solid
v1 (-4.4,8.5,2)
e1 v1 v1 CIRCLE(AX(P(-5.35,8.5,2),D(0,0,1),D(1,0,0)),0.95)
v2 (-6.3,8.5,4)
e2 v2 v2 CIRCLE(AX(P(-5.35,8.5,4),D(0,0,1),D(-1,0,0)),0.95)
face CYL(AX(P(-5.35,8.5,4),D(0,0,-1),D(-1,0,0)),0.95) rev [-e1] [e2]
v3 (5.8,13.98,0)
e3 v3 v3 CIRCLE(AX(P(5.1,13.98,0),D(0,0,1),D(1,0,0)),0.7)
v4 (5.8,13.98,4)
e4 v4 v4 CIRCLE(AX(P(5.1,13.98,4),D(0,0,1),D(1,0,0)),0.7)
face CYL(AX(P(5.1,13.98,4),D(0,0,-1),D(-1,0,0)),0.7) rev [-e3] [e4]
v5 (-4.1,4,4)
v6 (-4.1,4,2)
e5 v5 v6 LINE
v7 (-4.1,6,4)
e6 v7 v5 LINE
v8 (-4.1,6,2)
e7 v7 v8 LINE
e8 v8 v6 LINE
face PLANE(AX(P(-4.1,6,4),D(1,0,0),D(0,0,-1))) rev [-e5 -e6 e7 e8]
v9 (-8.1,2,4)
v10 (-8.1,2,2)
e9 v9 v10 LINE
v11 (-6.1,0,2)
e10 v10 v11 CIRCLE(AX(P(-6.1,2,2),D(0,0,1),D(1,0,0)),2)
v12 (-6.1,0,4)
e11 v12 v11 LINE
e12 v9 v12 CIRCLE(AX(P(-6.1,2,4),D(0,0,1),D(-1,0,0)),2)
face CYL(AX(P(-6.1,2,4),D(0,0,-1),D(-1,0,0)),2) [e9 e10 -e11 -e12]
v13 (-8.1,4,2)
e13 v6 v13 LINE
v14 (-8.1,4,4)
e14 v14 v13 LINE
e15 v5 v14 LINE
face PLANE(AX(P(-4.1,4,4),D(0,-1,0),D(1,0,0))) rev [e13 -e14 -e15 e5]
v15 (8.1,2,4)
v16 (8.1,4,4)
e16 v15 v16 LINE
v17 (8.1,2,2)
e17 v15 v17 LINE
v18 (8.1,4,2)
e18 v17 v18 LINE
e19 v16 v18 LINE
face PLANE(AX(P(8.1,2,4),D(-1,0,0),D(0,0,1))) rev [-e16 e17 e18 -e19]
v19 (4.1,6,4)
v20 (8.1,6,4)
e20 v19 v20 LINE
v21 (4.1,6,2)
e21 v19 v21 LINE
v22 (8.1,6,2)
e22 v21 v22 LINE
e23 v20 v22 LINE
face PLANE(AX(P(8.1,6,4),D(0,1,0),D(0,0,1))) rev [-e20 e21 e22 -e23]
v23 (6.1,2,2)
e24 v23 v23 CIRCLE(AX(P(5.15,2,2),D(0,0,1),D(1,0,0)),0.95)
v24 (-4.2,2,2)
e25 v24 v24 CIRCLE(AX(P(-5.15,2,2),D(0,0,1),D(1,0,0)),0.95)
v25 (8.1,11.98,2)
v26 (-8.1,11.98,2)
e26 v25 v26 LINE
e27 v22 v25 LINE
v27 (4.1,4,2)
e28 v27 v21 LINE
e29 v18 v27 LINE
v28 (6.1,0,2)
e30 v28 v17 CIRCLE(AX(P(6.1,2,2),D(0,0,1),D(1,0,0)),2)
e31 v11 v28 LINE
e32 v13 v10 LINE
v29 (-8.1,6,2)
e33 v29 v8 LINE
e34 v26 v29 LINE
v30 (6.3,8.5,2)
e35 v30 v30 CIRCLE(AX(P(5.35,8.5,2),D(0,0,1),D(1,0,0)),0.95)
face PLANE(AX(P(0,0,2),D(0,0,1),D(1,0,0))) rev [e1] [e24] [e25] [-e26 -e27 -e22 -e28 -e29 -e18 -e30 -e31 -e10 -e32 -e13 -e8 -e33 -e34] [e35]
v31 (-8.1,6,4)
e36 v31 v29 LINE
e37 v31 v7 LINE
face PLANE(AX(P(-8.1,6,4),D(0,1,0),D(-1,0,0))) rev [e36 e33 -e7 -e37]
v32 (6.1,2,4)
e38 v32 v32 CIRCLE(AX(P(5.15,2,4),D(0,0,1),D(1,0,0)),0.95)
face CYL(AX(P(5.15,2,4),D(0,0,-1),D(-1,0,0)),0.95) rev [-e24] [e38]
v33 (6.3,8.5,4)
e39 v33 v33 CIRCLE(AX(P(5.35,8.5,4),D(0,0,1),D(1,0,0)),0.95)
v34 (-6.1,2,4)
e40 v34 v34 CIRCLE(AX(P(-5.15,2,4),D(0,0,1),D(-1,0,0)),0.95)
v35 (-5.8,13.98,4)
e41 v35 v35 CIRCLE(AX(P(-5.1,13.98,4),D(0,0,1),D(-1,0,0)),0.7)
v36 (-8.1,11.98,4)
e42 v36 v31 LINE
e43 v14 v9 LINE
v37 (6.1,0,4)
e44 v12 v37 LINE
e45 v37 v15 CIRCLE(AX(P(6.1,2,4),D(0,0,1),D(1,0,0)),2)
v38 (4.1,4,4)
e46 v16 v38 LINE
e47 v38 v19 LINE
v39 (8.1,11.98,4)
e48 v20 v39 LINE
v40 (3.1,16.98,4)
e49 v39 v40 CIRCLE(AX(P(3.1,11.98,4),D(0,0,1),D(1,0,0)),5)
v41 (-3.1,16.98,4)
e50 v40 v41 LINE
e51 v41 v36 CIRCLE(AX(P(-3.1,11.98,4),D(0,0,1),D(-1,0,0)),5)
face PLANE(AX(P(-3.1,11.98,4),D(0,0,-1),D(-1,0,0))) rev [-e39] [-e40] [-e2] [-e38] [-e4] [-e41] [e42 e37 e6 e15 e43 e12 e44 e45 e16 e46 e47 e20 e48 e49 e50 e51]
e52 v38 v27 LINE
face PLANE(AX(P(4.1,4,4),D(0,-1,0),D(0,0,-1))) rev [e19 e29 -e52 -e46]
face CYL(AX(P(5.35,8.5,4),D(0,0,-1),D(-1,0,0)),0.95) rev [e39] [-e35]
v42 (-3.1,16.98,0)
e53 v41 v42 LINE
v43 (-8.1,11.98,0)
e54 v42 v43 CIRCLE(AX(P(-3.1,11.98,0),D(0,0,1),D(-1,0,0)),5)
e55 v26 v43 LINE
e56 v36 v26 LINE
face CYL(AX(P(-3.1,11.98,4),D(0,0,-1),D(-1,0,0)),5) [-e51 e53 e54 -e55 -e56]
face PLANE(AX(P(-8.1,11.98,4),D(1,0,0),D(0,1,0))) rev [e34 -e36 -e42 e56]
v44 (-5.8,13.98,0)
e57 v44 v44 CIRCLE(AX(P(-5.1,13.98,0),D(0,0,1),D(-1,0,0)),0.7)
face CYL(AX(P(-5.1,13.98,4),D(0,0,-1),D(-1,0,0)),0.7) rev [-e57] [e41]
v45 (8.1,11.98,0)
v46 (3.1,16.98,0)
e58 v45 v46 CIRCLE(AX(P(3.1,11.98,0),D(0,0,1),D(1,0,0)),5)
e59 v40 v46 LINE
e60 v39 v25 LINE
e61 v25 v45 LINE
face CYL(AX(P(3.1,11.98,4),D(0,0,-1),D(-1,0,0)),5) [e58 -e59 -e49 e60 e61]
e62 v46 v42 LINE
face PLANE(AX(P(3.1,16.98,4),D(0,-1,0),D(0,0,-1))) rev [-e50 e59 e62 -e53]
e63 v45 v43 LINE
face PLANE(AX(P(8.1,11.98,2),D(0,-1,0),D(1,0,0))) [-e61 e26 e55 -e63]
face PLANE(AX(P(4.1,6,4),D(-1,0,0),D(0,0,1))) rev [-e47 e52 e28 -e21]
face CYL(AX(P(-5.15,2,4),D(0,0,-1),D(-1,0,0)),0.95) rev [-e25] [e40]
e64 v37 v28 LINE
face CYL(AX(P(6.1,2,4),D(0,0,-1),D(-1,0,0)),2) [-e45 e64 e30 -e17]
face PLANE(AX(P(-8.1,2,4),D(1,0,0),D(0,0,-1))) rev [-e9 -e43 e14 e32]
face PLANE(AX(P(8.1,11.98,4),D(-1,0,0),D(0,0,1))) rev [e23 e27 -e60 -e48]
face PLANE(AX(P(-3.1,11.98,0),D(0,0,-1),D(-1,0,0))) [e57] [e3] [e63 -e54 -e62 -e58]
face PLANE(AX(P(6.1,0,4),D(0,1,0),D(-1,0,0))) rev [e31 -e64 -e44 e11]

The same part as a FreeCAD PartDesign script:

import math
import FreeCAD as App
import Part
import Sketcher

V = App.Vector

doc = App.newDocument("Part")
body = doc.addObject("PartDesign::Body", "Body")

# Sketch on XY plane
sketch1 = body.newObject("Sketcher::SketchObject", "Sketch")
sketch1.AttachmentSupport = (doc.getObject("XY_Plane"), [""])
sketch1.MapMode = "FlatFace"
sketch1.addGeometry(Part.LineSegment(V(3.1, 16.98, 0), V(-3.1, 16.98, 0)), False)
sketch1.addGeometry(Part.ArcOfCircle(Part.Circle(V(-3.1, 11.98, 0), V(0, 0, 1), 5), math.radians(90), math.radians(180)), False)
sketch1.addGeometry(Part.LineSegment(V(-8.1, 11.98, 0), V(-8.1, 6, 0)), False)
sketch1.addGeometry(Part.LineSegment(V(-8.1, 6, 0), V(-4.1, 6, 0)), False)
sketch1.addGeometry(Part.LineSegment(V(-4.1, 6, 0), V(-4.1, 4, 0)), False)
sketch1.addGeometry(Part.LineSegment(V(-4.1, 4, 0), V(-8.1, 4, 0)), False)
sketch1.addGeometry(Part.LineSegment(V(-8.1, 4, 0), V(-8.1, 2, 0)), False)
sketch1.addGeometry(Part.ArcOfCircle(Part.Circle(V(-6.1, 2, 0), V(0, 0, 1), 2), math.radians(-180), math.radians(-90)), False)
sketch1.addGeometry(Part.LineSegment(V(-6.1, 0, 0), V(6.1, 0, 0)), False)
sketch1.addGeometry(Part.ArcOfCircle(Part.Circle(V(6.1, 2, 0), V(0, 0, 1), 2), math.radians(-90), math.radians(0)), False)
sketch1.addGeometry(Part.LineSegment(V(8.1, 2, 0), V(8.1, 4, 0)), False)
sketch1.addGeometry(Part.LineSegment(V(8.1, 4, 0), V(4.1, 4, 0)), False)
sketch1.addGeometry(Part.LineSegment(V(4.1, 4, 0), V(4.1, 6, 0)), False)
sketch1.addGeometry(Part.LineSegment(V(4.1, 6, 0), V(8.1, 6, 0)), False)
sketch1.addGeometry(Part.LineSegment(V(8.1, 6, 0), V(8.1, 11.98, 0)), False)
sketch1.addGeometry(Part.ArcOfCircle(Part.Circle(V(3.1, 11.98, 0), V(0, 0, 1), 5), math.radians(0), math.radians(90)), False)
sketch1.addGeometry(Part.Circle(V(-5.15, 2, 0), V(0, 0, 1), 0.95), False)
sketch1.addGeometry(Part.Circle(V(5.15, 2, 0), V(0, 0, 1), 0.95), False)
sketch1.addGeometry(Part.Circle(V(-5.35, 8.5, 0), V(0, 0, 1), 0.95), False)
sketch1.addGeometry(Part.Circle(V(-5.1, 13.98, 0), V(0, 0, 1), 0.7), False)
sketch1.addGeometry(Part.Circle(V(5.35, 8.5, 0), V(0, 0, 1), 0.95), False)
sketch1.addGeometry(Part.Circle(V(5.1, 13.98, 0), V(0, 0, 1), 0.7), False)
sketch1.addConstraint(Sketcher.Constraint("Tangent", 0, 2, 1, 1))
sketch1.addConstraint(Sketcher.Constraint("Tangent", 1, 2, 2, 1))
sketch1.addConstraint(Sketcher.Constraint("Coincident", 2, 2, 3, 1))
sketch1.addConstraint(Sketcher.Constraint("Coincident", 3, 2, 4, 1))
sketch1.addConstraint(Sketcher.Constraint("Coincident", 4, 2, 5, 1))
sketch1.addConstraint(Sketcher.Constraint("Coincident", 5, 2, 6, 1))
sketch1.addConstraint(Sketcher.Constraint("Tangent", 6, 2, 7, 1))
sketch1.addConstraint(Sketcher.Constraint("Tangent", 7, 2, 8, 1))
sketch1.addConstraint(Sketcher.Constraint("Tangent", 8, 2, 9, 1))
sketch1.addConstraint(Sketcher.Constraint("Tangent", 9, 2, 10, 1))
sketch1.addConstraint(Sketcher.Constraint("Coincident", 10, 2, 11, 1))
sketch1.addConstraint(Sketcher.Constraint("Coincident", 11, 2, 12, 1))
sketch1.addConstraint(Sketcher.Constraint("Coincident", 12, 2, 13, 1))
sketch1.addConstraint(Sketcher.Constraint("Coincident", 13, 2, 14, 1))
sketch1.addConstraint(Sketcher.Constraint("Tangent", 14, 2, 15, 1))
sketch1.addConstraint(Sketcher.Constraint("Tangent", 15, 2, 0, 1))
sketch1.addConstraint(Sketcher.Constraint("Horizontal", 0))
sketch1.addConstraint(Sketcher.Constraint("Vertical", 2))
sketch1.addConstraint(Sketcher.Constraint("Horizontal", 3))
sketch1.addConstraint(Sketcher.Constraint("Vertical", 4))
sketch1.addConstraint(Sketcher.Constraint("Horizontal", 5))
sketch1.addConstraint(Sketcher.Constraint("Vertical", 6))
sketch1.addConstraint(Sketcher.Constraint("Horizontal", 8))
sketch1.addConstraint(Sketcher.Constraint("Vertical", 10))
sketch1.addConstraint(Sketcher.Constraint("Horizontal", 11))
sketch1.addConstraint(Sketcher.Constraint("Vertical", 12))
sketch1.addConstraint(Sketcher.Constraint("Horizontal", 13))
sketch1.addConstraint(Sketcher.Constraint("Vertical", 14))
sketch1.addConstraint(Sketcher.Constraint("Equal", 7, 9))
sketch1.addConstraint(Sketcher.Constraint("Equal", 1, 15))
sketch1.addConstraint(Sketcher.Constraint("Equal", 16, 17))
sketch1.addConstraint(Sketcher.Constraint("Equal", 17, 18))
sketch1.addConstraint(Sketcher.Constraint("Equal", 18, 20))
sketch1.addConstraint(Sketcher.Constraint("Equal", 19, 21))
sketch1.addConstraint(Sketcher.Constraint("Symmetric", 7, 2, 8, 2, -1, 1))
sketch1.addConstraint(Sketcher.Constraint("Symmetric", 16, 3, 17, 3, -2))
sketch1.addConstraint(Sketcher.Constraint("Symmetric", 18, 3, 20, 3, -2))
sketch1.addConstraint(Sketcher.Constraint("Symmetric", 19, 3, 21, 3, -2))
sketch1.addConstraint(Sketcher.Constraint("Symmetric", 4, 2, 11, 2, -2))
sketch1.addConstraint(Sketcher.Constraint("Symmetric", 2, 2, 13, 2, -2))
sketch1.addConstraint(Sketcher.Constraint("Horizontal", 9, 3, 16, 3))
sketch1.addConstraint(Sketcher.Constraint("Vertical", 2, 2, 5, 2))
sketch1.addConstraint(Sketcher.Constraint("Equal", 4, 6))
sketch1.addConstraint(Sketcher.Constraint("Radius", 1, 5.0))
sketch1.addConstraint(Sketcher.Constraint("Radius", 7, 2.0))
sketch1.addConstraint(Sketcher.Constraint("Diameter", 16, 1.9))
sketch1.addConstraint(Sketcher.Constraint("Diameter", 19, 1.4))
sketch1.addConstraint(Sketcher.Constraint("DistanceX", 3, 1, 3, 2, 4.0))
sketch1.addConstraint(Sketcher.Constraint("DistanceY", 4, 2, 4, 1, 2.0))
sketch1.addConstraint(Sketcher.Constraint("DistanceX", 0, 2, 0, 1, 6.2))
sketch1.addConstraint(Sketcher.Constraint("DistanceX", 19, 3, 1, 3, 2.0))
sketch1.addConstraint(Sketcher.Constraint("DistanceY", 1, 3, 19, 3, 2.0))
sketch1.addConstraint(Sketcher.Constraint("DistanceY", 2, 2, 2, 1, 5.98))
sketch1.addConstraint(Sketcher.Constraint("DistanceY", -1, 1, 18, 3, 8.5))
sketch1.addConstraint(Sketcher.Constraint("DistanceX", 16, 3, 17, 3, 10.3))
sketch1.addConstraint(Sketcher.Constraint("DistanceX", 18, 3, 16, 3, 0.2))
pad1 = body.newObject("PartDesign::Pad", "Pad")
pad1.Profile = sketch1
pad1.Length = 4

# Sketch on XY plane
sketch2 = body.newObject("Sketcher::SketchObject", "Sketch001")
sketch2.AttachmentSupport = (doc.getObject("XY_Plane"), [""])
sketch2.MapMode = "FlatFace"
sketch2.addGeometry(Part.LineSegment(V(-8.1, 11.98, 0), V(-8.1, 0, 0)), False)
sketch2.addGeometry(Part.LineSegment(V(-8.1, 0, 0), V(8.1, 0, 0)), False)
sketch2.addGeometry(Part.LineSegment(V(8.1, 0, 0), V(8.1, 11.98, 0)), False)
sketch2.addGeometry(Part.LineSegment(V(8.1, 11.98, 0), V(-8.1, 11.98, 0)), False)
sketch2.addConstraint(Sketcher.Constraint("Coincident", 0, 2, 1, 1))
sketch2.addConstraint(Sketcher.Constraint("Coincident", 1, 2, 2, 1))
sketch2.addConstraint(Sketcher.Constraint("Coincident", 2, 2, 3, 1))
sketch2.addConstraint(Sketcher.Constraint("Coincident", 3, 2, 0, 1))
sketch2.addConstraint(Sketcher.Constraint("Vertical", 0))
sketch2.addConstraint(Sketcher.Constraint("Horizontal", 1))
sketch2.addConstraint(Sketcher.Constraint("Vertical", 2))
sketch2.addConstraint(Sketcher.Constraint("Horizontal", 3))
sketch2.addConstraint(Sketcher.Constraint("Symmetric", 0, 2, 1, 2, -1, 1))
sketch2.addConstraint(Sketcher.Constraint("DistanceX", 1, 1, 1, 2, 16.2))
sketch2.addConstraint(Sketcher.Constraint("DistanceY", 0, 2, 0, 1, 11.98))
pocket1 = body.newObject("PartDesign::Pocket", "Pocket")
pocket1.Profile = sketch2
pocket1.Length = 2
pocket1.Reversed = True

doc.recompute()
